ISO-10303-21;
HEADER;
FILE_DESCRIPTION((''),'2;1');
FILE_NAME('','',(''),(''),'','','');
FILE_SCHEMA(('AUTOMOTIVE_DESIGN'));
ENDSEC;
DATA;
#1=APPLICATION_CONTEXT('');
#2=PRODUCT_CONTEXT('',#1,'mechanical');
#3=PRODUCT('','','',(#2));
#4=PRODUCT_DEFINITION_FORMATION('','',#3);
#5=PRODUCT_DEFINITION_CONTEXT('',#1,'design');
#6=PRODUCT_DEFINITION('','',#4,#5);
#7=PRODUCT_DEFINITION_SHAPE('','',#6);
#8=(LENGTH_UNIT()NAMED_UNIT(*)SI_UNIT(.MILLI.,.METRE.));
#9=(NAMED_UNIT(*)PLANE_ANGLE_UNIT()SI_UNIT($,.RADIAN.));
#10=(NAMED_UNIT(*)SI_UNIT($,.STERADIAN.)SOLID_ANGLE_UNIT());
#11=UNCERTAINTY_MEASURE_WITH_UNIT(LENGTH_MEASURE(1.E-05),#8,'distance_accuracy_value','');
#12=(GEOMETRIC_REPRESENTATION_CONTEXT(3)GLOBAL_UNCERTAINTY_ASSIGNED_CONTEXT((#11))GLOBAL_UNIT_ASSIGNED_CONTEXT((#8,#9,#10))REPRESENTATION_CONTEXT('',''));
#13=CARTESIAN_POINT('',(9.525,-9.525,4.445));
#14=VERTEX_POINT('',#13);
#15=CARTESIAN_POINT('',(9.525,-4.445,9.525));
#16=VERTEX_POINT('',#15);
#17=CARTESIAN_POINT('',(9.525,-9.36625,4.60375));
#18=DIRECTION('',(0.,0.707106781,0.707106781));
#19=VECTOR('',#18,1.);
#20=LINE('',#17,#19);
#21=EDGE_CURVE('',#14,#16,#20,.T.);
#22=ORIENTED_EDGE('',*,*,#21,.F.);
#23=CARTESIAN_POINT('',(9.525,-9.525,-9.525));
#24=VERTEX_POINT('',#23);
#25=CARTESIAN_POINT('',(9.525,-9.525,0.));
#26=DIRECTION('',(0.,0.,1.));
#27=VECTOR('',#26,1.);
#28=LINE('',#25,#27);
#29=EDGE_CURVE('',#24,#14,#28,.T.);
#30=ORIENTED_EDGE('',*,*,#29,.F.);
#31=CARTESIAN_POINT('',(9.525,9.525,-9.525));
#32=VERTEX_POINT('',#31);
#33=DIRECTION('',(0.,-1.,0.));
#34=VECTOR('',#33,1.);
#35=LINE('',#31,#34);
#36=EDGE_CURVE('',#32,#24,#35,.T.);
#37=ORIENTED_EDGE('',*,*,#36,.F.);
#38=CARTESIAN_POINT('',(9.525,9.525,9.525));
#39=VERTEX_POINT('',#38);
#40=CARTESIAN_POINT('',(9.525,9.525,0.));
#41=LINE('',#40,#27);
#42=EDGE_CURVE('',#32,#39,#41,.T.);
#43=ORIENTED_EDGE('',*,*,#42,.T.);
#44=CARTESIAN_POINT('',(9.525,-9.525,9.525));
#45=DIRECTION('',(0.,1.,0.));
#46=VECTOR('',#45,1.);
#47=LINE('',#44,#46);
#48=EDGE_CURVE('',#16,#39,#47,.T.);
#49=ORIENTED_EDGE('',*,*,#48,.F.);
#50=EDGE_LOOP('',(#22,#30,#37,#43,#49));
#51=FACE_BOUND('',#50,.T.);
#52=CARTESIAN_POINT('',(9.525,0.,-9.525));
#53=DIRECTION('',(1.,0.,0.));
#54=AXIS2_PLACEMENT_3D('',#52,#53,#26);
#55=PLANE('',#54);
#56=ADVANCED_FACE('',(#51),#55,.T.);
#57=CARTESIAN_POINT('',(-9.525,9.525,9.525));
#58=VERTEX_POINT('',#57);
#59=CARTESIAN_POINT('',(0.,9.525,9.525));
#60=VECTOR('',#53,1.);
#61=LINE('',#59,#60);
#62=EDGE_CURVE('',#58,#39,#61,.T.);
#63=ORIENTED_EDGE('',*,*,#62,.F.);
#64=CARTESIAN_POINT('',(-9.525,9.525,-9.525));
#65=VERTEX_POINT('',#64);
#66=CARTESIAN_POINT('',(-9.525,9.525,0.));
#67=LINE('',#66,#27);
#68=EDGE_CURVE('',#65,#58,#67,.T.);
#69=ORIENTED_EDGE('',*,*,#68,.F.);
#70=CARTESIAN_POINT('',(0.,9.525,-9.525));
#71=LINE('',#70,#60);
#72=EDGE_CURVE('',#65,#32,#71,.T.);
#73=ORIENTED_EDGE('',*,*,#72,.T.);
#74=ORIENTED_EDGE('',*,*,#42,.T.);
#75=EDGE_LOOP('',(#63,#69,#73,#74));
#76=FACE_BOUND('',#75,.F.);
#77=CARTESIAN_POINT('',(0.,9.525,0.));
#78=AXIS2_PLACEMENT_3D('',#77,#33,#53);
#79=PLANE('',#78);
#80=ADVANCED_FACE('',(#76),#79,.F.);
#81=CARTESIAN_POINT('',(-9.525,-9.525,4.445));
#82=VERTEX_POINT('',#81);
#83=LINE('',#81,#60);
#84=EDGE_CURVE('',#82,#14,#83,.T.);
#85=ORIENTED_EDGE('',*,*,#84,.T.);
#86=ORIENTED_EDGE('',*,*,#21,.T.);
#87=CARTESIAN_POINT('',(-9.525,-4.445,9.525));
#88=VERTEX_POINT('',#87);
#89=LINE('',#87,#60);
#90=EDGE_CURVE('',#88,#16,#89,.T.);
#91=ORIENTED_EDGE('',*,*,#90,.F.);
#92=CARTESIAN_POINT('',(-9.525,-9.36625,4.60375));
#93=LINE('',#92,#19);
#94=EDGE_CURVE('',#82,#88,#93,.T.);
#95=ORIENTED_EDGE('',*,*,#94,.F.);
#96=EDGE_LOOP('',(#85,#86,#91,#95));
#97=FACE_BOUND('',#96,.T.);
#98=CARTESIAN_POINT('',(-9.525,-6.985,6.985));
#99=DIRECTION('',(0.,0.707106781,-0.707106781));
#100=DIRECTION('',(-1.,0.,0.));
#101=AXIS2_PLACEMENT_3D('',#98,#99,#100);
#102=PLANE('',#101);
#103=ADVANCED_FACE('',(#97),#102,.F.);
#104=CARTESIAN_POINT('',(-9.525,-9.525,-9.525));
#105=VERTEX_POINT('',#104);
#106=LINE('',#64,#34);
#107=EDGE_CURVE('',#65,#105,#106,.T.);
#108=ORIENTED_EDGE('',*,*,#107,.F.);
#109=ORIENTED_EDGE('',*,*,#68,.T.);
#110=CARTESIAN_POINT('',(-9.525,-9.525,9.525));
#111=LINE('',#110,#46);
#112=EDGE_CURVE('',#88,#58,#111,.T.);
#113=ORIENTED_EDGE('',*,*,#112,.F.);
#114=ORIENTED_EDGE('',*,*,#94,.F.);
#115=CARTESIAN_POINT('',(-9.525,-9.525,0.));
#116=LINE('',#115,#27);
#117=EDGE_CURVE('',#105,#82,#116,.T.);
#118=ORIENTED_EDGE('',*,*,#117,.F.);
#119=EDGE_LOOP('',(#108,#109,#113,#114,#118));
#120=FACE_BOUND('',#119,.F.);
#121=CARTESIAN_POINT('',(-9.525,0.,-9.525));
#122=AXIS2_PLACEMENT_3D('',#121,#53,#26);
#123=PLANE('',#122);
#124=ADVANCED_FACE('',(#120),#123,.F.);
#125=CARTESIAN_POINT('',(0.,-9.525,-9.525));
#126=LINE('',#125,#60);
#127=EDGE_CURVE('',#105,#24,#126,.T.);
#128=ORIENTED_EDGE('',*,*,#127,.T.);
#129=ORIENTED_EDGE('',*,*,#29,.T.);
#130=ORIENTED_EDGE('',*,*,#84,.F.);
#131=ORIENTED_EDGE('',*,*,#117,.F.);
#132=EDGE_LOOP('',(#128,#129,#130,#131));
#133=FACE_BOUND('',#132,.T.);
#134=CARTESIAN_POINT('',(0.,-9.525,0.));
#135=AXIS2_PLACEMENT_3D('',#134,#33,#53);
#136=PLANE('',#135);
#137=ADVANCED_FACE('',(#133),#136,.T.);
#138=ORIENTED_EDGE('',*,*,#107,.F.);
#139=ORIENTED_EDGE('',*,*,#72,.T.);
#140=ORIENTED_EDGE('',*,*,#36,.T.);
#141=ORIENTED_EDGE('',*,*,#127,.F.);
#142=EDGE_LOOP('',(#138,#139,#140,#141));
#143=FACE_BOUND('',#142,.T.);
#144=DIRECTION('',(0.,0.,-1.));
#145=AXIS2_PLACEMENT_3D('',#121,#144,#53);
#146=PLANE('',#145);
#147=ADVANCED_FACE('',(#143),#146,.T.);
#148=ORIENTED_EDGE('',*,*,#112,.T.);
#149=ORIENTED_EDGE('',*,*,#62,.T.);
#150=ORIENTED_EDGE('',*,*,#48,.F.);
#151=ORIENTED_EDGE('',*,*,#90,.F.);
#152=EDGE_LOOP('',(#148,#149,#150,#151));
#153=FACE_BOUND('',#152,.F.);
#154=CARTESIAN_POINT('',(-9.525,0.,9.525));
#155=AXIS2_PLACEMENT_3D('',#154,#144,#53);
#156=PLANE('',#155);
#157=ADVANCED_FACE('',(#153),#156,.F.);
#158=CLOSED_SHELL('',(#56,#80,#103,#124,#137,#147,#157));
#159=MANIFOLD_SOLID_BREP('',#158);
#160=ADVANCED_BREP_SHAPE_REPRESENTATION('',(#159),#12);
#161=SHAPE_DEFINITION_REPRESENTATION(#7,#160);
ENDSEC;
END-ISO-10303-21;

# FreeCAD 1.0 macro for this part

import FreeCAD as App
import Part
import Sketcher
Q = App.Units.Quantity


def edges_at(feature, points):
    """Names of the edges that pass closest to the given points."""
    edges = feature.Shape.Edges
    near = lambda p: min(range(len(edges)), key=lambda i: edges[i].distToShape(Part.Vertex(*p))[0])
    return sorted({f"Edge{near(p) + 1}" for p in points})

doc = App.newDocument("Part")
body = doc.addObject("PartDesign::Body", "Body")

# Sketch on XZ plane
sketch1 = body.newObject("Sketcher::SketchObject", "Sketch")
sketch1.AttachmentSupport = (doc.getObject("XZ_Plane"), [""])
sketch1.MapMode = "FlatFace"
sketch1.addGeometry(Part.LineSegment(App.Vector(-9.525, 9.525, 0), App.Vector(-9.525, -9.525, 0)), False)
sketch1.addGeometry(Part.LineSegment(App.Vector(-9.525, -9.525, 0), App.Vector(9.525, -9.525, 0)), False)
sketch1.addGeometry(Part.LineSegment(App.Vector(9.525, -9.525, 0), App.Vector(9.525, 9.525, 0)), False)
sketch1.addGeometry(Part.LineSegment(App.Vector(9.525, 9.525, 0), App.Vector(-9.525, 9.525, 0)), False)
sketch1.addConstraint(Sketcher.Constraint("Coincident", 0, 2, 1, 1))
sketch1.addConstraint(Sketcher.Constraint("Coincident", 1, 2, 2, 1))
sketch1.addConstraint(Sketcher.Constraint("Coincident", 2, 2, 3, 1))
sketch1.addConstraint(Sketcher.Constraint("Coincident", 3, 2, 0, 1))
sketch1.addConstraint(Sketcher.Constraint("Vertical", 0))
sketch1.addConstraint(Sketcher.Constraint("Horizontal", 1))
sketch1.addConstraint(Sketcher.Constraint("Vertical", 2))
sketch1.addConstraint(Sketcher.Constraint("Horizontal", 3))
sketch1.addConstraint(Sketcher.Constraint("Symmetric", 0, 2, 2, 2, -1, 1))
sketch1.addConstraint(Sketcher.Constraint("Equal", 3, 0))
sketch1.addConstraint(Sketcher.Constraint("DistanceX", 1, 1, 1, 2, Q("0.75 in")))
pad1 = body.newObject("PartDesign::Pad", "Pad")
pad1.Profile = sketch1
pad1.Length = Q("0.75 in")
pad1.Midplane = True
doc.recompute()

chamfer = body.newObject("PartDesign::Chamfer", "Chamfer")
chamfer.Base = (pad1, edges_at(pad1, [(0, -9.525, 9.525)]))
chamfer.Size = Q("0.2 in")

doc.recompute()
